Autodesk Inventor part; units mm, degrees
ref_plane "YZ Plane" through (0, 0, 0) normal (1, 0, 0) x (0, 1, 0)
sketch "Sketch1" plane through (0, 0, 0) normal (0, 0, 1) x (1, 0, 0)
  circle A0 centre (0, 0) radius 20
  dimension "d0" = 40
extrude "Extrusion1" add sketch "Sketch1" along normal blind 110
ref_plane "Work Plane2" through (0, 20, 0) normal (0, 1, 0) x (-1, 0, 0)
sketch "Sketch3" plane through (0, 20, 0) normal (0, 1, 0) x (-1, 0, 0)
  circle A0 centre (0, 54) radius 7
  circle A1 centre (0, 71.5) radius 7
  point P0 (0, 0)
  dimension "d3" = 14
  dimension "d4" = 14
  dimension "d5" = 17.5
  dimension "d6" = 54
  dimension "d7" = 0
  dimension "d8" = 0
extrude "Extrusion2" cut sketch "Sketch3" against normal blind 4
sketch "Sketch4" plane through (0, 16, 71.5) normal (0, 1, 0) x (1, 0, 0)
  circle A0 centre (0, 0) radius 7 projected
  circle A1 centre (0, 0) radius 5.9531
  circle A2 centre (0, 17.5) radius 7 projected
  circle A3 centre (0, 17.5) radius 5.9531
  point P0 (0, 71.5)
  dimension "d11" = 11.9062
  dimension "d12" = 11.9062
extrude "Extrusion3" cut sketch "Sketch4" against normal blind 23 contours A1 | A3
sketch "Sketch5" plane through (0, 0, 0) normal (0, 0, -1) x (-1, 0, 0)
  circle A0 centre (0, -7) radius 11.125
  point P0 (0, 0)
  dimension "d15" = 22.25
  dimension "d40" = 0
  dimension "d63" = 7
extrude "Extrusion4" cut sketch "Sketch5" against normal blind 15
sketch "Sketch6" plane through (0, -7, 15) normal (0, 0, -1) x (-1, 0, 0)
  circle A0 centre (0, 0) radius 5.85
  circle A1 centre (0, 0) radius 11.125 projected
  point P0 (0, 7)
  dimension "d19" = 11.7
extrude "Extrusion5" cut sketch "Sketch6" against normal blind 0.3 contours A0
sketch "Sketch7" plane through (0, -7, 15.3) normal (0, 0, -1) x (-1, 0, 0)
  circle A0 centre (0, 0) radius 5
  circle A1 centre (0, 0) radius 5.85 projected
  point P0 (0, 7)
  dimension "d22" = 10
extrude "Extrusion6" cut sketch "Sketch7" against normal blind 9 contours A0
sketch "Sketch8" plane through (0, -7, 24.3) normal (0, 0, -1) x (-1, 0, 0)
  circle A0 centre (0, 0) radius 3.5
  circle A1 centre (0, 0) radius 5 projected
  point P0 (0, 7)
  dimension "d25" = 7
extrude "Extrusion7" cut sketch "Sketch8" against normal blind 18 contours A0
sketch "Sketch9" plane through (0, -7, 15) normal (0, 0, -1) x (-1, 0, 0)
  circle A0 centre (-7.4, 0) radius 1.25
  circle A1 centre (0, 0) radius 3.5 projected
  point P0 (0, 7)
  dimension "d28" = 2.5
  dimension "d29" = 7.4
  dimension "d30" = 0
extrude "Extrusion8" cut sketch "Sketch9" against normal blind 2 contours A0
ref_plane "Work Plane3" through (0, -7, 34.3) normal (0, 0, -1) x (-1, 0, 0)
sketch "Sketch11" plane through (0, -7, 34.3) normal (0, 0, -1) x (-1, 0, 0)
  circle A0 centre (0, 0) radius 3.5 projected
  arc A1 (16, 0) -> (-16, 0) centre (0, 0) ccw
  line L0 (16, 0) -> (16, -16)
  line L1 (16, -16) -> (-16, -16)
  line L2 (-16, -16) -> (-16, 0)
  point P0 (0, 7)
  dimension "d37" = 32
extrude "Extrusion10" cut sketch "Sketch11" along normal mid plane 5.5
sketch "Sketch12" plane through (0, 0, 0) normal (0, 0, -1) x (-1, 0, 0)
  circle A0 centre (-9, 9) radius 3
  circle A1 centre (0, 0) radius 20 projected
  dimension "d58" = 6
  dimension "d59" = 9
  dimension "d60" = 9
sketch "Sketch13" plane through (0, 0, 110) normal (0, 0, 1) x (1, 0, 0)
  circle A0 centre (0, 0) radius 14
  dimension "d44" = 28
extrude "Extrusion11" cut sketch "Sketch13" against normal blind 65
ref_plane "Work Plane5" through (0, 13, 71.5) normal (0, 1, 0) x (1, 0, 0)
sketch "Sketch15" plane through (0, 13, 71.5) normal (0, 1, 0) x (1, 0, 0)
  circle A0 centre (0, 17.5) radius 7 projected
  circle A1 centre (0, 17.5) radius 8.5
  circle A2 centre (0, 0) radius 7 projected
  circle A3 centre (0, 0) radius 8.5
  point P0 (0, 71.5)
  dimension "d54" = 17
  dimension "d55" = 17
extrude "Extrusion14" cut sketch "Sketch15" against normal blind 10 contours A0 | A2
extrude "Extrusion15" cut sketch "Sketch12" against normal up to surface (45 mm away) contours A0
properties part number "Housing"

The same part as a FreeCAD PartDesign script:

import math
import FreeCAD as App
import Part
import Sketcher

V = App.Vector

doc = App.newDocument("Part")
params = doc.addObject("Spreadsheet::Sheet", "Params")
for row, (alias, value) in enumerate([
    ("sketch1_diameter", "40 mm"),
    ("pad1_length", "110 mm"),
    ("sketch2_diameter", "14 mm"),
    ("pocket1_length", "4 mm"),
    ("pocket2_length", "23 mm"),
    ("sketch4_diameter", "22.25 mm"),
    ("pocket3_length", "15 mm"),
    ("sketch5_diameter", "11.7 mm"),
    ("pocket4_length", "0.3 mm"),
    ("sketch6_diameter", "10 mm"),
    ("pocket5_length", "9 mm"),
    ("sketch7_diameter", "7 mm"),
    ("pocket6_length", "18 mm"),
    ("sketch8_diameter", "2.5 mm"),
    ("pocket7_length", "2 mm"),
    ("sketch9_radius", "16 mm"),
    ("sketch9_diameter", "7 mm"),
    ("sketch9_height", "16 mm"),
    ("pocket8_length", "5.5 mm"),
    ("sketch10_diameter", "28 mm"),
    ("pocket9_length", "65 mm"),
    ("sketch11_diameter", "14 mm"),
    ("pocket10_length", "10 mm"),
    ("sketch12_diameter", "6 mm"),
    ("pocket11_length", "45 mm"),
], start=1):
    params.set(f"A{row}", alias)
    params.set(f"B{row}", "=" + value)
    params.setAlias(f"B{row}", alias)

body = doc.addObject("PartDesign::Body", "Body")

# Sketch on XY plane
sketch1 = body.newObject("Sketcher::SketchObject", "Sketch")
sketch1.AttachmentSupport = (doc.getObject("XY_Plane"), [""])
sketch1.MapMode = "FlatFace"
sketch1.addGeometry(Part.Circle(V(0, 0, 0), V(0, 0, 1), 20), False)
sketch1.addConstraint([
    Sketcher.Constraint("Coincident", 0, 3, -1, 1),
    Sketcher.Constraint("Diameter", 0, 40.0),
])
sketch1.setExpression("Constraints[1]", "Params.sketch1_diameter")
pad1 = body.newObject("PartDesign::Pad", "Pad")
pad1.Profile = sketch1
pad1.setExpression("Length", "Params.pad1_length")

# Sketch on XZ plane
sketch2 = body.newObject("Sketcher::SketchObject", "Sketch001")
sketch2.AttachmentSupport = (doc.getObject("XZ_Plane"), [""])
sketch2.MapMode = "FlatFace"
sketch2.AttachmentOffset = App.Placement(V(0, 0, -20), App.Rotation())
sketch2.addGeometry([
    Part.Circle(V(0, 54, 0), V(0, 0, 1), 7),
    Part.Circle(V(0, 71.5, 0), V(0, 0, 1), 7),
], False)
sketch2.addConstraint([
    Sketcher.Constraint("Equal", 0, 1),
    Sketcher.Constraint("PointOnObject", 0, 3, -2),
    Sketcher.Constraint("PointOnObject", 1, 3, -2),
    Sketcher.Constraint("Diameter", 0, 14.0),
    Sketcher.Constraint("DistanceY", -1, 1, 0, 3, 54.0),
    Sketcher.Constraint("DistanceY", 0, 3, 1, 3, 17.5),
])
sketch2.setExpression("Constraints[3]", "Params.sketch2_diameter")
pocket1 = body.newObject("PartDesign::Pocket", "Pocket")
pocket1.Profile = sketch2
pocket1.setExpression("Length", "Params.pocket1_length")
pocket1.Reversed = True

# Sketch on XZ plane
sketch3 = body.newObject("Sketcher::SketchObject", "Sketch002")
sketch3.AttachmentSupport = (doc.getObject("XZ_Plane"), [""])
sketch3.MapMode = "FlatFace"
sketch3.AttachmentOffset = App.Placement(V(0, 0, -16), App.Rotation())
sketch3.addGeometry([
    Part.Circle(V(0, 71.5, 0), V(0, 0, 1), 5.9531),
    Part.Circle(V(0, 54, 0), V(0, 0, 1), 5.9531),
], False)
sketch3.addConstraint([
    Sketcher.Constraint("Equal", 0, 1),
    Sketcher.Constraint("PointOnObject", 0, 3, -2),
    Sketcher.Constraint("PointOnObject", 1, 3, -2),
    Sketcher.Constraint("Diameter", 0, 11.9062),
    Sketcher.Constraint("DistanceY", -1, 1, 1, 3, 54.0),
    Sketcher.Constraint("DistanceY", -1, 1, 0, 3, 71.5),
])
pocket2 = body.newObject("PartDesign::Pocket", "Pocket001")
pocket2.Profile = sketch3
pocket2.setExpression("Length", "Params.pocket2_length")
pocket2.Reversed = True

# Sketch on XY plane
sketch4 = body.newObject("Sketcher::SketchObject", "Sketch003")
sketch4.AttachmentSupport = (doc.getObject("XY_Plane"), [""])
sketch4.MapMode = "FlatFace"
sketch4.addGeometry(Part.Circle(V(0, -7, 0), V(0, 0, 1), 11.125), False)
sketch4.addConstraint([
    Sketcher.Constraint("PointOnObject", 0, 3, -2),
    Sketcher.Constraint("Diameter", 0, 22.25),
    Sketcher.Constraint("DistanceY", 0, 3, -1, 1, 7.0),
])
sketch4.setExpression("Constraints[1]", "Params.sketch4_diameter")
pocket3 = body.newObject("PartDesign::Pocket", "Pocket002")
pocket3.Profile = sketch4
pocket3.setExpression("Length", "Params.pocket3_length")
pocket3.Reversed = True

# Sketch on XY plane
sketch5 = body.newObject("Sketcher::SketchObject", "Sketch004")
sketch5.AttachmentSupport = (doc.getObject("XY_Plane"), [""])
sketch5.MapMode = "FlatFace"
sketch5.AttachmentOffset = App.Placement(V(0, 0, 15), App.Rotation())
sketch5.addGeometry(Part.Circle(V(0, -7, 0), V(0, 0, 1), 5.85), False)
sketch5.addConstraint([
    Sketcher.Constraint("PointOnObject", 0, 3, -2),
    Sketcher.Constraint("Diameter", 0, 11.7),
    Sketcher.Constraint("DistanceY", 0, 3, -1, 1, 7.0),
])
sketch5.setExpression("Constraints[1]", "Params.sketch5_diameter")
pocket4 = body.newObject("PartDesign::Pocket", "Pocket003")
pocket4.Profile = sketch5
pocket4.setExpression("Length", "Params.pocket4_length")
pocket4.Reversed = True

# Sketch on XY plane
sketch6 = body.newObject("Sketcher::SketchObject", "Sketch005")
sketch6.AttachmentSupport = (doc.getObject("XY_Plane"), [""])
sketch6.MapMode = "FlatFace"
sketch6.AttachmentOffset = App.Placement(V(0, 0, 15.3), App.Rotation())
sketch6.addGeometry(Part.Circle(V(0, -7, 0), V(0, 0, 1), 5), False)
sketch6.addConstraint([
    Sketcher.Constraint("PointOnObject", 0, 3, -2),
    Sketcher.Constraint("Diameter", 0, 10.0),
    Sketcher.Constraint("DistanceY", 0, 3, -1, 1, 7.0),
])
sketch6.setExpression("Constraints[1]", "Params.sketch6_diameter")
pocket5 = body.newObject("PartDesign::Pocket", "Pocket004")
pocket5.Profile = sketch6
pocket5.setExpression("Length", "Params.pocket5_length")
pocket5.Reversed = True

# Sketch on XY plane
sketch7 = body.newObject("Sketcher::SketchObject", "Sketch006")
sketch7.AttachmentSupport = (doc.getObject("XY_Plane"), [""])
sketch7.MapMode = "FlatFace"
sketch7.AttachmentOffset = App.Placement(V(0, 0, 24.3), App.Rotation())
sketch7.addGeometry(Part.Circle(V(0, -7, 0), V(0, 0, 1), 3.5), False)
sketch7.addConstraint([
    Sketcher.Constraint("PointOnObject", 0, 3, -2),
    Sketcher.Constraint("Diameter", 0, 7.0),
    Sketcher.Constraint("DistanceY", 0, 3, -1, 1, 7.0),
])
sketch7.setExpression("Constraints[1]", "Params.sketch7_diameter")
pocket6 = body.newObject("PartDesign::Pocket", "Pocket005")
pocket6.Profile = sketch7
pocket6.setExpression("Length", "Params.pocket6_length")
pocket6.Reversed = True

# Sketch on XY plane
sketch8 = body.newObject("Sketcher::SketchObject", "Sketch007")
sketch8.AttachmentSupport = (doc.getObject("XY_Plane"), [""])
sketch8.MapMode = "FlatFace"
sketch8.AttachmentOffset = App.Placement(V(0, 0, 15), App.Rotation())
sketch8.addGeometry(Part.Circle(V(7.4, -7, 0), V(0, 0, 1), 1.25), False)
sketch8.addConstraint([
    Sketcher.Constraint("Diameter", 0, 2.5),
    Sketcher.Constraint("DistanceX", -1, 1, 0, 3, 7.4),
    Sketcher.Constraint("DistanceY", 0, 3, -1, 1, 7.0),
])
sketch8.setExpression("Constraints[0]", "Params.sketch8_diameter")
pocket7 = body.newObject("PartDesign::Pocket", "Pocket006")
pocket7.Profile = sketch8
pocket7.setExpression("Length", "Params.pocket7_length")
pocket7.Reversed = True

# Sketch on XY plane
sketch9 = body.newObject("Sketcher::SketchObject", "Sketch008")
sketch9.AttachmentSupport = (doc.getObject("XY_Plane"), [""])
sketch9.MapMode = "FlatFace"
sketch9.AttachmentOffset = App.Placement(V(0, 0, 34.3), App.Rotation())
sketch9.addGeometry([
    Part.LineSegment(V(-16, -23, 0), V(-16, -7, 0)),  # 0
    Part.ArcOfCircle(Part.Circle(V(0, -7, 0), V(0, 0, 1), 16), math.radians(0), math.radians(180)),  # 1
    Part.LineSegment(V(16, -7, 0), V(16, -23, 0)),  # 2
    Part.LineSegment(V(16, -23, 0), V(-16, -23, 0)),  # 3
    Part.Circle(V(0, -7, 0), V(0, 0, 1), 3.5),  # 4
], False)
sketch9.addConstraint([
    Sketcher.Constraint("Tangent", 0, 2, 1, 2),
    Sketcher.Constraint("Tangent", 1, 1, 2, 1),
    Sketcher.Constraint("Coincident", 2, 2, 3, 1),
    Sketcher.Constraint("Coincident", 3, 2, 0, 1),
    Sketcher.Constraint("Vertical", 0),
    Sketcher.Constraint("Vertical", 2),
    Sketcher.Constraint("Horizontal", 3),
    Sketcher.Constraint("Coincident", 4, 3, 1, 3),
    Sketcher.Constraint("PointOnObject", 1, 3, -2),
    Sketcher.Constraint("Radius", 1, 16.0),
    Sketcher.Constraint("Diameter", 4, 7.0),
    Sketcher.Constraint("DistanceY", 0, 1, 0, 2, 16.0),
    Sketcher.Constraint("DistanceY", 1, 3, -1, 1, 7.0),
])
sketch9.setExpression("Constraints[9]", "Params.sketch9_radius")
sketch9.setExpression("Constraints[10]", "Params.sketch9_diameter")
sketch9.setExpression("Constraints[11]", "Params.sketch9_height")
pocket8 = body.newObject("PartDesign::Pocket", "Pocket007")
pocket8.Profile = sketch9
pocket8.setExpression("Length", "Params.pocket8_length")
pocket8.Midplane = True

# Sketch on XY plane
sketch10 = body.newObject("Sketcher::SketchObject", "Sketch009")
sketch10.AttachmentSupport = (doc.getObject("XY_Plane"), [""])
sketch10.MapMode = "FlatFace"
sketch10.AttachmentOffset = App.Placement(V(0, 0, 110), App.Rotation())
sketch10.addGeometry(Part.Circle(V(0, 0, 0), V(0, 0, 1), 14), False)
sketch10.addConstraint([
    Sketcher.Constraint("Coincident", 0, 3, -1, 1),
    Sketcher.Constraint("Diameter", 0, 28.0),
])
sketch10.setExpression("Constraints[1]", "Params.sketch10_diameter")
pocket9 = body.newObject("PartDesign::Pocket", "Pocket008")
pocket9.Profile = sketch10
pocket9.setExpression("Length", "Params.pocket9_length")

# Sketch on XZ plane
sketch11 = body.newObject("Sketcher::SketchObject", "Sketch010")
sketch11.AttachmentSupport = (doc.getObject("XZ_Plane"), [""])
sketch11.MapMode = "FlatFace"
sketch11.AttachmentOffset = App.Placement(V(0, 0, -13), App.Rotation())
sketch11.addGeometry([
    Part.Circle(V(0, 54, 0), V(0, 0, 1), 7),
    Part.Circle(V(0, 71.5, 0), V(0, 0, 1), 7),
], False)
sketch11.addConstraint([
    Sketcher.Constraint("Equal", 0, 1),
    Sketcher.Constraint("PointOnObject", 0, 3, -2),
    Sketcher.Constraint("PointOnObject", 1, 3, -2),
    Sketcher.Constraint("Diameter", 0, 14.0),
    Sketcher.Constraint("DistanceY", -1, 1, 0, 3, 54.0),
    Sketcher.Constraint("DistanceY", -1, 1, 1, 3, 71.5),
])
sketch11.setExpression("Constraints[3]", "Params.sketch11_diameter")
pocket10 = body.newObject("PartDesign::Pocket", "Pocket009")
pocket10.Profile = sketch11
pocket10.setExpression("Length", "Params.pocket10_length")
pocket10.Reversed = True

# Sketch on XY plane
sketch12 = body.newObject("Sketcher::SketchObject", "Sketch011")
sketch12.AttachmentSupport = (doc.getObject("XY_Plane"), [""])
sketch12.MapMode = "FlatFace"
sketch12.addGeometry(Part.Circle(V(9, 9, 0), V(0, 0, 1), 3), False)
sketch12.addConstraint([
    Sketcher.Constraint("Diameter", 0, 6.0),
    Sketcher.Constraint("DistanceX", -1, 1, 0, 3, 9.0),
    Sketcher.Constraint("DistanceY", -1, 1, 0, 3, 9.0),
])
sketch12.setExpression("Constraints[0]", "Params.sketch12_diameter")
pocket11 = body.newObject("PartDesign::Pocket", "Pocket010")
pocket11.Profile = sketch12
pocket11.setExpression("Length", "Params.pocket11_length")
pocket11.Reversed = True

doc.recompute()
